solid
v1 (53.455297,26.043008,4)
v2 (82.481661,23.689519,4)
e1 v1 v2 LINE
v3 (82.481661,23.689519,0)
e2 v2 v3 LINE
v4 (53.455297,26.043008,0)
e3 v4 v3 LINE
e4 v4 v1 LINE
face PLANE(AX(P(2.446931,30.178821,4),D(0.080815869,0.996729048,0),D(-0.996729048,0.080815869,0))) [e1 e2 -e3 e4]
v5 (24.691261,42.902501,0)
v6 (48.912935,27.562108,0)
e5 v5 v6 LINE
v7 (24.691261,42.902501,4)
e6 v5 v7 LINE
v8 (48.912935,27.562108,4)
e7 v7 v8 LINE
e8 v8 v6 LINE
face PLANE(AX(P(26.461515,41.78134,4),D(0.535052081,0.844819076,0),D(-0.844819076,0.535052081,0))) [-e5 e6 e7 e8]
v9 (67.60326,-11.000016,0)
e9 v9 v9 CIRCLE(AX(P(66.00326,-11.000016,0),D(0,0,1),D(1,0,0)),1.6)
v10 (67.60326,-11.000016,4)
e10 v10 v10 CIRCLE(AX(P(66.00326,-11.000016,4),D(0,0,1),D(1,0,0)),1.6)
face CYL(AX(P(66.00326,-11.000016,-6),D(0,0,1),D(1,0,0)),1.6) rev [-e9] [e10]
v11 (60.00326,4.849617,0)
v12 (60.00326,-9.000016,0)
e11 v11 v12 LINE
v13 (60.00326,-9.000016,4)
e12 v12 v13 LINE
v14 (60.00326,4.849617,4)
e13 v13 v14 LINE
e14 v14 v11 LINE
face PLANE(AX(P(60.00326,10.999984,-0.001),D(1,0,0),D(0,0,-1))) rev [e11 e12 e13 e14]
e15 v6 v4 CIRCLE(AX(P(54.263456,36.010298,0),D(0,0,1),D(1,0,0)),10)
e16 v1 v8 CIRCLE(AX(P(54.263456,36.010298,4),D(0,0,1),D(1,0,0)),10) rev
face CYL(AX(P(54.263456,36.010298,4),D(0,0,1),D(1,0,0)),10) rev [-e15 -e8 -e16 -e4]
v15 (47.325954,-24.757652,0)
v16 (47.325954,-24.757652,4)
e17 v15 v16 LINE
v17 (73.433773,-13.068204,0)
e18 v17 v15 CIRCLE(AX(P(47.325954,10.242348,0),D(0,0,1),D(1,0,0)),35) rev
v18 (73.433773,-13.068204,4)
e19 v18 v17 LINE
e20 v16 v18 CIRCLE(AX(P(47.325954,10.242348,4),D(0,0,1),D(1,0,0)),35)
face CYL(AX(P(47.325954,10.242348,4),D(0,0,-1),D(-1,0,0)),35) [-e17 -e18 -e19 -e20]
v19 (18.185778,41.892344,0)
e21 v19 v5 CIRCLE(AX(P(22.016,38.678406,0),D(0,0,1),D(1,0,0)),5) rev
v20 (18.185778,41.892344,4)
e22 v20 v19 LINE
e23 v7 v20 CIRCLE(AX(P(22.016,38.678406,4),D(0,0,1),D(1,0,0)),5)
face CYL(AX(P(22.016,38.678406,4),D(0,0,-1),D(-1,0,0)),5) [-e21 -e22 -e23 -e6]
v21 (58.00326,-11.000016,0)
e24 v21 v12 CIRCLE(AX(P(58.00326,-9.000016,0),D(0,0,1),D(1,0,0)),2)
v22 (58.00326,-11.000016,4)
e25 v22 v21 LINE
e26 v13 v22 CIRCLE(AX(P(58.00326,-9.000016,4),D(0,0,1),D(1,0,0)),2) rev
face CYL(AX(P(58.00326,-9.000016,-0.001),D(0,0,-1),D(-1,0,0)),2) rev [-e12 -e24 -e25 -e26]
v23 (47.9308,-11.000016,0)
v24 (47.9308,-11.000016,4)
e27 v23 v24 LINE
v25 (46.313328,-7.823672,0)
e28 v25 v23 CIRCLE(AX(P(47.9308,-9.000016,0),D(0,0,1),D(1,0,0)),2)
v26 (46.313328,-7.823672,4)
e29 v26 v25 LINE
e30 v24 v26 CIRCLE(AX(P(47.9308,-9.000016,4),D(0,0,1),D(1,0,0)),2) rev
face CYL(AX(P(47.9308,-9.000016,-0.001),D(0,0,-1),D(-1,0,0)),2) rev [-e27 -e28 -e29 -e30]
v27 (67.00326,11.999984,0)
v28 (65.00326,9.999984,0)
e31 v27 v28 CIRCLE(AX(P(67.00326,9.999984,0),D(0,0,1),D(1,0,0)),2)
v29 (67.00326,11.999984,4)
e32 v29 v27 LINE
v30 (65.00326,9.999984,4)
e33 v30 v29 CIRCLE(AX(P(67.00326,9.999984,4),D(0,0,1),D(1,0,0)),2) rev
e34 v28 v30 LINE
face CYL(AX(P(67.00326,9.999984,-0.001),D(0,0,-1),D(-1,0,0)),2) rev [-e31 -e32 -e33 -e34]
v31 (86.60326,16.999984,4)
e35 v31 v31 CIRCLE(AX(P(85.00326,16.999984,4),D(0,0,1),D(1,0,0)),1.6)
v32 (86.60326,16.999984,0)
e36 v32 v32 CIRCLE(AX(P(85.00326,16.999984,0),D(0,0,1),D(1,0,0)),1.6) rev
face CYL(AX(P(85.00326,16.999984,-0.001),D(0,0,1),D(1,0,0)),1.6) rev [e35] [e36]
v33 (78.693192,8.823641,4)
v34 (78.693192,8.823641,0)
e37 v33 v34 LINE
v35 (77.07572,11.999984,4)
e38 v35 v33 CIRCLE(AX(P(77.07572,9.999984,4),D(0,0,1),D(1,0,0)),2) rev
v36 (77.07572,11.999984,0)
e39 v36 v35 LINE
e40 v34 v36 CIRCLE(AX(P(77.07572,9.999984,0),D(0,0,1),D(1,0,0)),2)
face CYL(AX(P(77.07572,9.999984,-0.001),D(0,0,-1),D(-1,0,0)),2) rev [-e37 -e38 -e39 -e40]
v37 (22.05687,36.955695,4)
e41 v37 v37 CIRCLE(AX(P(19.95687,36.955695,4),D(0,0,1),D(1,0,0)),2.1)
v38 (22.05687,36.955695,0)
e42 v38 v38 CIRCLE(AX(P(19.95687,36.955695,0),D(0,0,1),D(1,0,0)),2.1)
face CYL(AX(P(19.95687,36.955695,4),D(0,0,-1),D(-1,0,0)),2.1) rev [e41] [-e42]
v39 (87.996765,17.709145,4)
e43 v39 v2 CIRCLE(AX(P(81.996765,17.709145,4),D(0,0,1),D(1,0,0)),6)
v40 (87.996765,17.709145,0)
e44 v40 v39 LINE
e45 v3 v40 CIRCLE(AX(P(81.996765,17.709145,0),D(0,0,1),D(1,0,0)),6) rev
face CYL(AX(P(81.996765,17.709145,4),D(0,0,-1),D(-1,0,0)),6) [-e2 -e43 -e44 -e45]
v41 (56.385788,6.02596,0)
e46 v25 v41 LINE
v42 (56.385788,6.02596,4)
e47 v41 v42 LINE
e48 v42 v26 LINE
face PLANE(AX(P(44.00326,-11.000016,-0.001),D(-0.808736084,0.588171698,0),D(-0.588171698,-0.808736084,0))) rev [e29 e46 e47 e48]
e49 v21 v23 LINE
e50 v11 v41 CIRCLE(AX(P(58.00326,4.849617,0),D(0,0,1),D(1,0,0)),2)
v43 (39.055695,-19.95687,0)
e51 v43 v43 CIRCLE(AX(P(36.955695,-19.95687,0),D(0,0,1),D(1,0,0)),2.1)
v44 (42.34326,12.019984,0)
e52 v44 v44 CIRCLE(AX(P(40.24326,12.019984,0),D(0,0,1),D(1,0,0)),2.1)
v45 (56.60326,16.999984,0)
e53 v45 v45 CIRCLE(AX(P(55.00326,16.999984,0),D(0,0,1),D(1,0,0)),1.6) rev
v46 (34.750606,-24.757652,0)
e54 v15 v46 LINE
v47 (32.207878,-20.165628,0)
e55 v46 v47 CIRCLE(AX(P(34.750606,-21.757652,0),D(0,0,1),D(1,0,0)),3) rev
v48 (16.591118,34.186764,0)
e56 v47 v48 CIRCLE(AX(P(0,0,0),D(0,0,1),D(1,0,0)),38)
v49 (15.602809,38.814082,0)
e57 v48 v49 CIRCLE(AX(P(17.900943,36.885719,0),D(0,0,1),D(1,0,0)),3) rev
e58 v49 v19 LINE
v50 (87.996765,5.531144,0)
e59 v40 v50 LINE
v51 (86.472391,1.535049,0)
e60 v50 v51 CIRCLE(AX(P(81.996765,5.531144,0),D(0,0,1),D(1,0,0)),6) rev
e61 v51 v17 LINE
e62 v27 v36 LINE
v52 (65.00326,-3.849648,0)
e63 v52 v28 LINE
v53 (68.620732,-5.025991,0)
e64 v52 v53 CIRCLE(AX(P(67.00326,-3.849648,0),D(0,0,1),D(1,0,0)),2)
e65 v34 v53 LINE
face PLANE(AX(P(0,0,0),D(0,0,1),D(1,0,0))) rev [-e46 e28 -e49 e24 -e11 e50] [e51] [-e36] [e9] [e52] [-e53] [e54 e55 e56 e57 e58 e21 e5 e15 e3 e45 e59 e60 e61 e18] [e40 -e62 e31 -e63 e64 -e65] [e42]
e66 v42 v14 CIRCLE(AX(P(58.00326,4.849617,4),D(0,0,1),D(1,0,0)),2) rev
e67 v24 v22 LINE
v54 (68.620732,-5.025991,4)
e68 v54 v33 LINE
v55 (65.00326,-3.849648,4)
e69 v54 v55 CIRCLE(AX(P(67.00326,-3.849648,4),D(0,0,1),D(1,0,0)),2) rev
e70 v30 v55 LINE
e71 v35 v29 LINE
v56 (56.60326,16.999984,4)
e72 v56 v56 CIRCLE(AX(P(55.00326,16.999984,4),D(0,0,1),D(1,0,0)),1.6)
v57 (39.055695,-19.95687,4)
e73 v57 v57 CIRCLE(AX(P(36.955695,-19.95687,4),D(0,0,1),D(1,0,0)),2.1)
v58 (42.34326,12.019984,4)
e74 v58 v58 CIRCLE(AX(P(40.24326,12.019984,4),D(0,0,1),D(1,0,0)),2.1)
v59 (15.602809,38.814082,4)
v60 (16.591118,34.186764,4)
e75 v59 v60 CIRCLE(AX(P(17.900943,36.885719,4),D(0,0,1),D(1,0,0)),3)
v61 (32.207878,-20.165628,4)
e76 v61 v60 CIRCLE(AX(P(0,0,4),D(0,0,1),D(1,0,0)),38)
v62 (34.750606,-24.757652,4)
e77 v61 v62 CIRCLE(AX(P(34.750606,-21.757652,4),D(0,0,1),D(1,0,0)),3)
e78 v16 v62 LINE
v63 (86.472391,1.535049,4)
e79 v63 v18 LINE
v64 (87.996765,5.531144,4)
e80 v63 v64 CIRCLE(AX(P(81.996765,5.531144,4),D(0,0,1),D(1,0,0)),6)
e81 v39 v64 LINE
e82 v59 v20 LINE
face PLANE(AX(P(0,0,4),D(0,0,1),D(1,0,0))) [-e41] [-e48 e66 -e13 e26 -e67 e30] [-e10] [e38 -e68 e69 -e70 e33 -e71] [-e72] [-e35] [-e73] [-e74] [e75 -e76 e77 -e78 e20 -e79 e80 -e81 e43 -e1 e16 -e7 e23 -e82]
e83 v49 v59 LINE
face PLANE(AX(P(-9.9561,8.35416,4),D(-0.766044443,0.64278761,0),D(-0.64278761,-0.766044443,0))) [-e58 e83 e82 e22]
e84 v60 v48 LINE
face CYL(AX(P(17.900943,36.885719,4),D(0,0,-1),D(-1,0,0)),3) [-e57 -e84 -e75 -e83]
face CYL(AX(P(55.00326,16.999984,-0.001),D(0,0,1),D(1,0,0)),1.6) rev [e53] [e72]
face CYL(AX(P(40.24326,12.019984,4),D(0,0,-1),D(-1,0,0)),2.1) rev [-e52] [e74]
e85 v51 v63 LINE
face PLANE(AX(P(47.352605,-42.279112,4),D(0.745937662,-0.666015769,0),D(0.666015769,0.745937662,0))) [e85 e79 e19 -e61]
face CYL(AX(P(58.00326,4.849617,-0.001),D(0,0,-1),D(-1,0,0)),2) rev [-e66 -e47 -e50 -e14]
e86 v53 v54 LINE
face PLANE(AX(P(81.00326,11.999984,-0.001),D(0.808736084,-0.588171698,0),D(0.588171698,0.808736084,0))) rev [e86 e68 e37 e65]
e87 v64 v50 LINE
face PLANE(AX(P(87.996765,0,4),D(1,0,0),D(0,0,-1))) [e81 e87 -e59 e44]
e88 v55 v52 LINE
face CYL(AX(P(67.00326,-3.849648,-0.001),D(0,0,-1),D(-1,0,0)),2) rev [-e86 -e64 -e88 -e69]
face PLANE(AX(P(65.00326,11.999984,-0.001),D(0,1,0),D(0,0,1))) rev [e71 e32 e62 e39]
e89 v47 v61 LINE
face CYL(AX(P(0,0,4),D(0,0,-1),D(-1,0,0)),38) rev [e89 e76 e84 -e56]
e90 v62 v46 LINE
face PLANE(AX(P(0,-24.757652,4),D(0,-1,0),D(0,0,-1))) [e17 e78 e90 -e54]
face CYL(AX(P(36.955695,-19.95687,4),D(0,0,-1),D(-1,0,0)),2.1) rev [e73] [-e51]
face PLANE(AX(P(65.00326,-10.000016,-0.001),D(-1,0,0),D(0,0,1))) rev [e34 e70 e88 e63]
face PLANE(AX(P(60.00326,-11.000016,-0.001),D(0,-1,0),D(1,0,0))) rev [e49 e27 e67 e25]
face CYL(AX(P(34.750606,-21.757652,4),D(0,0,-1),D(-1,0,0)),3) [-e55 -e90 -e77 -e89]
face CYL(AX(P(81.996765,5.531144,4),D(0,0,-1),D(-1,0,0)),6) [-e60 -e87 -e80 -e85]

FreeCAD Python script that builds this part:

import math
import FreeCAD as App
import Part
import Sketcher

V = App.Vector
Q = App.Units.Quantity


def edges_at(feature, points):
    """Names of the edges that pass closest to the given points."""
    edges = feature.Shape.Edges
    near = lambda p: min(range(len(edges)), key=lambda i: edges[i].distToShape(Part.Vertex(*p))[0])
    return sorted({f"Edge{near(p) + 1}" for p in points})

doc = App.newDocument("Part")
body = doc.addObject("PartDesign::Body", "Body")

sketch1 = body.newObject("Sketcher::SketchObject", "Sketch")
sketch1.AttachmentSupport = (doc.getObject("XY_Plane"), [""])
sketch1.MapMode = "FlatFace"
sketch1.addGeometry(Part.LineSegment(V(21, 45.2, 0), V(13, 35.7, 0)), False)
sketch1.addGeometry(Part.ArcOfCircle(Part.Circle(V(0, 0, 0), V(0, 0, 1), 38), math.radians(0), math.radians(70)), False)
sketch1.addGeometry(Part.ArcOfCircle(Part.Circle(V(0, 0, 0), V(0, 0, 1), 38), math.radians(-41), math.radians(0)), False)
sketch1.addGeometry(Part.LineSegment(V(28.8, -24.8, 0), V(63, -24.8, 0)), False)
sketch1.addGeometry(Part.LineSegment(V(63, -24.8, 0), V(88, 3.2, 0)), False)
sketch1.addGeometry(Part.LineSegment(V(88, 3.2, 0), V(88, 23.2, 0)), False)
sketch1.addGeometry(Part.LineSegment(V(88, 23.2, 0), V(51, 26.2, 0)), False)
sketch1.addGeometry(Part.LineSegment(V(51, 26.2, 0), V(21, 45.2, 0)), False)
sketch1.addGeometry(Part.Circle(V(37, -20, 0), V(0, 0, 1), 2.1), False)
sketch1.addGeometry(Part.Circle(V(20, 37, 0), V(0, 0, 1), 2.1), False)
sketch1.addGeometry(Part.Circle(V(40.2, 12, 0), V(0, 0, 1), 2.1), False)
sketch1.addConstraint(Sketcher.Constraint("Coincident", 0, 2, 1, 2))
sketch1.addConstraint(Sketcher.Constraint("Tangent", 1, 1, 2, 2))
sketch1.addConstraint(Sketcher.Constraint("Coincident", 2, 1, 3, 1))
sketch1.addConstraint(Sketcher.Constraint("Coincident", 3, 2, 4, 1))
sketch1.addConstraint(Sketcher.Constraint("Coincident", 4, 2, 5, 1))
sketch1.addConstraint(Sketcher.Constraint("Coincident", 5, 2, 6, 1))
sketch1.addConstraint(Sketcher.Constraint("Coincident", 6, 2, 7, 1))
sketch1.addConstraint(Sketcher.Constraint("Coincident", 7, 2, 0, 1))
sketch1.addConstraint(Sketcher.Constraint("Horizontal", 3))
sketch1.addConstraint(Sketcher.Constraint("Vertical", 5))
sketch1.addConstraint(Sketcher.Constraint("Coincident", 1, 3, -1, 1))
sketch1.addConstraint(Sketcher.Constraint("Equal", 1, 2))
sketch1.addConstraint(Sketcher.Constraint("Equal", 8, 9))
sketch1.addConstraint(Sketcher.Constraint("Equal", 9, 10))
sketch1.addConstraint(Sketcher.Constraint("PointOnObject", 1, 1, -1))
sketch1.addConstraint(Sketcher.Constraint("Radius", 1, Q("38 mm")))
sketch1.addConstraint(Sketcher.Constraint("Diameter", 8, Q("4.2 mm")))
sketch1.addConstraint(Sketcher.Constraint("DistanceY", 5, 1, 5, 2, Q("20 mm")))
sketch1.addConstraint(Sketcher.Constraint("Angle", 0, Q("-130 deg")))
sketch1.addConstraint(Sketcher.Constraint("DistanceX", 3, 2, 4, 2, Q("25 mm")))
sketch1.addConstraint(Sketcher.Constraint("DistanceY", 3, 2, 4, 2, Q("28 mm")))
sketch1.addConstraint(Sketcher.Constraint("DistanceX", 6, 2, 5, 2, Q("37 mm")))
sketch1.addConstraint(Sketcher.Constraint("DistanceY", 5, 2, 6, 2, Q("3 mm")))
sketch1.addConstraint(Sketcher.Constraint("DistanceX", 0, 2, 6, 2, Q("38 mm")))
sketch1.addConstraint(Sketcher.Constraint("DistanceX", 0, 2, 7, 2, Q("8 mm")))
sketch1.addConstraint(Sketcher.Constraint("DistanceY", 6, 2, 7, 2, Q("19 mm")))
sketch1.addConstraint(Sketcher.Constraint("DistanceX", 3, 1, 3, 2, Q("34.168677 mm")))
sketch1.addConstraint(Sketcher.Constraint("DistanceY", 8, 3, -1, 1, Q("19.95687 mm")))
sketch1.addConstraint(Sketcher.Constraint("DistanceX", -1, 1, 9, 3, Q("19.95687 mm")))
sketch1.addConstraint(Sketcher.Constraint("DistanceX", -1, 1, 10, 3, Q("40.24326 mm")))
sketch1.addConstraint(Sketcher.Constraint("DistanceY", 10, 3, 9, 3, Q("24.93571 mm")))
sketch1.addConstraint(Sketcher.Constraint("DistanceX", 0, 2, 8, 3, Q("23.958929 mm")))
sketch1.addConstraint(Sketcher.Constraint("DistanceY", -1, 1, 9, 3, Q("36.955695 mm")))
pad1 = body.newObject("PartDesign::Pad", "Pad")
pad1.Profile = sketch1
pad1.Length = 4
doc.recompute()

fillet = body.newObject("PartDesign::Fillet", "Fillet")
fillet.Base = (pad1, edges_at(pad1, [(20.997, 45.242, 2)]))
fillet.Radius = 5
doc.recompute()

fillet2 = body.newObject("PartDesign::Fillet", "Fillet001")
fillet2.Base = (fillet, edges_at(fillet, [(87.997, 23.242, 2), (87.997, 3.242, 2)]))
fillet2.Radius = 6
doc.recompute()

fillet3 = body.newObject("PartDesign::Fillet", "Fillet002")
fillet3.Base = (fillet2, edges_at(fillet2, [(50.997, 26.242, 2)]))
fillet3.Radius = 10
doc.recompute()

fillet4 = body.newObject("PartDesign::Fillet", "Fillet003")
fillet4.Base = (fillet3, edges_at(fillet3, [(62.997, -24.758, 2)]))
fillet4.Radius = 35

sketch2 = body.newObject("Sketcher::SketchObject", "Sketch001")
sketch2.AttachmentSupport = (doc.getObject("XY_Plane"), [""])
sketch2.MapMode = "FlatFace"
sketch2.addGeometry(Part.Circle(V(55, 17, 0), V(0, 0, 1), 1.6), False)
sketch2.addGeometry(Part.Circle(V(40.2, 12, 0), V(0, 0, 1), 2.1), False)
sketch2.addGeometry(Part.Circle(V(85, 17, 0), V(0, 0, 1), 1.6), False)
sketch2.addConstraint(Sketcher.Constraint("Equal", 0, 2))
sketch2.addConstraint(Sketcher.Constraint("Horizontal", 0, 3, 2, 3))
sketch2.addConstraint(Sketcher.Constraint("Diameter", 0, Q("3.2 mm")))
sketch2.addConstraint(Sketcher.Constraint("Diameter", 1, Q("4.2 mm")))
sketch2.addConstraint(Sketcher.Constraint("DistanceX", 0, 3, 2, 3, Q("30 mm")))
sketch2.addConstraint(Sketcher.Constraint("DistanceX", 1, 3, 0, 3, Q("14.76 mm")))
sketch2.addConstraint(Sketcher.Constraint("DistanceY", 1, 3, 0, 3, Q("4.98 mm")))
sketch2.addConstraint(Sketcher.Constraint("DistanceX", -1, 1, 0, 3, Q("55.00326 mm")))
sketch2.addConstraint(Sketcher.Constraint("DistanceY", -1, 1, 0, 3, Q("16.999984 mm")))
pocket1 = body.newObject("PartDesign::Pocket", "Pocket")
pocket1.Profile = sketch2
pocket1.Length = 4
pocket1.Reversed = True

sketch3 = body.newObject("Sketcher::SketchObject", "Sketch002")
sketch3.AttachmentSupport = (doc.getObject("XY_Plane"), [""])
sketch3.MapMode = "FlatFace"
sketch3.addGeometry(Part.Circle(V(55, 17, 0), V(0, 0, 1), 1.6), False)
sketch3.addGeometry(Part.LineSegment(V(81, 12, 0), V(65, 12, 0)), False)
sketch3.addGeometry(Part.LineSegment(V(65, 12, 0), V(65, -10, 0)), False)
sketch3.addGeometry(Part.LineSegment(V(65, -10, 0), V(81, 12, 0)), False)
sketch3.addGeometry(Part.LineSegment(V(60, -11, 0), V(60, 11, 0)), False)
sketch3.addGeometry(Part.LineSegment(V(60, 11, 0), V(44, -11, 0)), False)
sketch3.addGeometry(Part.LineSegment(V(44, -11, 0), V(60, -11, 0)), False)
sketch3.addConstraint(Sketcher.Constraint("Coincident", 1, 2, 2, 1))
sketch3.addConstraint(Sketcher.Constraint("Coincident", 2, 2, 3, 1))
sketch3.addConstraint(Sketcher.Constraint("Coincident", 3, 2, 1, 1))
sketch3.addConstraint(Sketcher.Constraint("Coincident", 4, 2, 5, 1))
sketch3.addConstraint(Sketcher.Constraint("Coincident", 5, 2, 6, 1))
sketch3.addConstraint(Sketcher.Constraint("Coincident", 6, 2, 4, 1))
sketch3.addConstraint(Sketcher.Constraint("Horizontal", 1))
sketch3.addConstraint(Sketcher.Constraint("Vertical", 2))
sketch3.addConstraint(Sketcher.Constraint("Vertical", 4))
sketch3.addConstraint(Sketcher.Constraint("Horizontal", 6))
sketch3.addConstraint(Sketcher.Constraint("Parallel", 3, 5))
sketch3.addConstraint(Sketcher.Constraint("Equal", 1, 6))
sketch3.addConstraint(Sketcher.Constraint("Diameter", 0, Q("3.2 mm")))
sketch3.addConstraint(Sketcher.Constraint("DistanceX", 1, 2, 1, 1, Q("16 mm")))
sketch3.addConstraint(Sketcher.Constraint("DistanceY", 2, 2, 2, 1, Q("22 mm")))
sketch3.addConstraint(Sketcher.Constraint("DistanceX", 0, 3, 1, 2, Q("10 mm")))
sketch3.addConstraint(Sketcher.Constraint("DistanceY", 1, 2, 0, 3, Q("5 mm")))
sketch3.addConstraint(Sketcher.Constraint("DistanceX", 4, 2, 1, 2, Q("5 mm")))
sketch3.addConstraint(Sketcher.Constraint("DistanceY", 4, 2, 1, 2, Q("1 mm")))
sketch3.addConstraint(Sketcher.Constraint("DistanceX", -1, 1, 0, 3, Q("55.00326 mm")))
sketch3.addConstraint(Sketcher.Constraint("DistanceY", -1, 1, 0, 3, Q("16.999984 mm")))
pocket2 = body.newObject("PartDesign::Pocket", "Pocket001")
pocket2.Profile = sketch3
pocket2.Length = 4
pocket2.Reversed = True
doc.recompute()

fillet5 = body.newObject("PartDesign::Fillet", "Fillet004")
fillet5.Base = (pocket2, edges_at(pocket2, [(65.003, 12, 2), (60.003, -11, 2)]))
fillet5.Radius = 2
doc.recompute()

fillet6 = body.newObject("PartDesign::Fillet", "Fillet005")
fillet6.Base = (fillet5, edges_at(fillet5, [
    (65.003, -10, 2),
    (81.003, 12, 2),
    (44.003, -11, 2),
    (60.003, 11, 2),
]))
fillet6.Radius = 2
doc.recompute()

fillet7 = body.newObject("PartDesign::Fillet", "Fillet006")
fillet7.Base = (fillet6, edges_at(fillet6, [(12.997, 35.708, 2), (28.828, -24.758, 2)]))
fillet7.Radius = 3

sketch4 = body.newObject("Sketcher::SketchObject", "Sketch003")
sketch4.AttachmentSupport = (doc.getObject("XY_Plane"), [""])
sketch4.MapMode = "FlatFace"
sketch4.AttachmentOffset = App.Placement(V(0, 0, 4), App.Rotation())
sketch4.addGeometry(Part.Circle(V(66, -11, 0), V(0, 0, 1), 1.6), False)
sketch4.addConstraint(Sketcher.Constraint("Diameter", 0, Q("3.2 mm")))
sketch4.addConstraint(Sketcher.Constraint("DistanceX", -1, 1, 0, 3, Q("66.00326 mm")))
sketch4.addConstraint(Sketcher.Constraint("DistanceY", 0, 3, -1, 1, Q("11.000016 mm")))
pocket3 = body.newObject("PartDesign::Pocket", "Pocket002")
pocket3.Profile = sketch4
pocket3.Length = 10

doc.recompute()
